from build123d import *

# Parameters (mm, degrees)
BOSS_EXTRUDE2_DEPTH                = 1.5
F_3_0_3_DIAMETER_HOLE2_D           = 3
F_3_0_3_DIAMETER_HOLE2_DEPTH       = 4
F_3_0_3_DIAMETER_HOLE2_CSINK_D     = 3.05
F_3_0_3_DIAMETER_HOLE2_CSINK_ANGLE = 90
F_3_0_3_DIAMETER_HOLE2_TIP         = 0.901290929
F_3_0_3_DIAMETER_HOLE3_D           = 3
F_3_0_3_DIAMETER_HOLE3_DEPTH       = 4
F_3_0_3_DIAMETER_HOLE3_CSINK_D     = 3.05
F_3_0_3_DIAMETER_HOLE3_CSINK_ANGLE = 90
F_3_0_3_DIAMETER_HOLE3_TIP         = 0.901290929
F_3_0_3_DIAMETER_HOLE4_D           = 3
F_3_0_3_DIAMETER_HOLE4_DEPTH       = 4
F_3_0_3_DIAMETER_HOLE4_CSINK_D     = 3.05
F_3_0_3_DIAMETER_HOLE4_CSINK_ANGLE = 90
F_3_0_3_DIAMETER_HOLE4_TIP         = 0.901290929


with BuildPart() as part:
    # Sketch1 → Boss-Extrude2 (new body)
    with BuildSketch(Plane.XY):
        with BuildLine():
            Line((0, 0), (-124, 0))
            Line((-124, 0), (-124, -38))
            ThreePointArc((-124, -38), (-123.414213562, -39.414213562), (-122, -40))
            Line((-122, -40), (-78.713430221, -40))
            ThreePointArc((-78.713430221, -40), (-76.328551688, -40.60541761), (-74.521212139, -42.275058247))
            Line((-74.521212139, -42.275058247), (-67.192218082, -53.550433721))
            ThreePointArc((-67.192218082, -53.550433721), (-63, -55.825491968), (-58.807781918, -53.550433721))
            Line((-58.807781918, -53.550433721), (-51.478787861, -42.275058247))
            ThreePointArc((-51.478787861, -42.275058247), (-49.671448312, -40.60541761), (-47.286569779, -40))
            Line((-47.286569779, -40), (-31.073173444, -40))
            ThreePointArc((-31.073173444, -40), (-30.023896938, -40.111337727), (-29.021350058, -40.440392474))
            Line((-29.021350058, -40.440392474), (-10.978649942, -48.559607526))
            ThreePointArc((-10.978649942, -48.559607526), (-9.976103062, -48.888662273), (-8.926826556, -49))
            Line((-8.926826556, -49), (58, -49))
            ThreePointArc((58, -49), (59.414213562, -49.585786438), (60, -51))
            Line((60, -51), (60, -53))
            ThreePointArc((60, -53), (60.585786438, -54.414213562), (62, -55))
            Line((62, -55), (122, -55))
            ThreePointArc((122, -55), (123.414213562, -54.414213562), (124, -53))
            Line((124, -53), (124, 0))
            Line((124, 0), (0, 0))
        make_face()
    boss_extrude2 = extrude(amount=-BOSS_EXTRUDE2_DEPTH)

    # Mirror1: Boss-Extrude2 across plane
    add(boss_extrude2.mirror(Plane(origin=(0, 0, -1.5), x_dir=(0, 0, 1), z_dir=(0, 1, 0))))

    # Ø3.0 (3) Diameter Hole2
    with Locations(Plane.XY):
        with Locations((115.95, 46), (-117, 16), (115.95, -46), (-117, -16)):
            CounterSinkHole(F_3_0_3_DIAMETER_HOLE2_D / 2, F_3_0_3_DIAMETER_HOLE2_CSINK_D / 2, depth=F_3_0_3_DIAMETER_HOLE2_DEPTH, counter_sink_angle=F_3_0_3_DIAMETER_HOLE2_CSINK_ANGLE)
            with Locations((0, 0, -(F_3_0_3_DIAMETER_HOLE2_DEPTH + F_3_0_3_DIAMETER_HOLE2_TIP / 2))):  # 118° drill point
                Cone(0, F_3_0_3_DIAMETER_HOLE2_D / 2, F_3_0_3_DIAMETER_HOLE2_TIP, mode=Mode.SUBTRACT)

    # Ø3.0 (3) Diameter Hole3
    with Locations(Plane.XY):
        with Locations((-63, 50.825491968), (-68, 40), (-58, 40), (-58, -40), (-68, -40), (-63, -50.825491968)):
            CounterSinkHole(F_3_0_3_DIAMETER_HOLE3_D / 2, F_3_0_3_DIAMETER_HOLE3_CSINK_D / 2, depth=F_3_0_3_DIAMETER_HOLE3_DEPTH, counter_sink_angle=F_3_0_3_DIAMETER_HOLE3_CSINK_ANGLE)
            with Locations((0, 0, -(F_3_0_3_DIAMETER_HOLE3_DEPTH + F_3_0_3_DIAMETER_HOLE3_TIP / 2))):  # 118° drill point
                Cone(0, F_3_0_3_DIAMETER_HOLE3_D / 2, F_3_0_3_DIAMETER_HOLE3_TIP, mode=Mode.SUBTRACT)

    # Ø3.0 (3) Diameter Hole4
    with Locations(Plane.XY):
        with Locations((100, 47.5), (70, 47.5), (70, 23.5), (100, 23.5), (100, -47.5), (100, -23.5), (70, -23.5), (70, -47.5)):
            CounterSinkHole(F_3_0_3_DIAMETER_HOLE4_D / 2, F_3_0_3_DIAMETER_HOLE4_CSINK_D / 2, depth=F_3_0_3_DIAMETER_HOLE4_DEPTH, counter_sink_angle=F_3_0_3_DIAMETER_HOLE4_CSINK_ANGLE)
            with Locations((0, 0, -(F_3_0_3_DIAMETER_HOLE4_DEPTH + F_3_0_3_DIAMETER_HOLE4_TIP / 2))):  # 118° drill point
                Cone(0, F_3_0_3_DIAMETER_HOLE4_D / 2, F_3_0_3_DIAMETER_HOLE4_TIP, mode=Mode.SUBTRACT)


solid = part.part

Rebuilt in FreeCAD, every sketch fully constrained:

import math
import FreeCAD as App
import Part
import Sketcher
from FreeCAD import Vector
Q = App.Units.Quantity

doc = App.newDocument("Part")
params = doc.addObject("Spreadsheet::Sheet", "Params")
for row, (alias, value) in enumerate([
    ("sketch1_radius", "2 mm"),
    ("sketch1_radius2", "5 mm"),
    ("sketch1_width", "60 mm"),
    ("sketch1_width2", "248 mm"),
    ("sketch1_height", "38 mm"),
    ("pad1_length", "1.5 mm"),
    ("sketch2_diameter", "3 mm"),
    ("hole_diameter", "3 mm"),
    ("hole_depth", "4 mm"),
    ("hole_csink_diameter", "3.05 mm"),
    ("sketch3_diameter", "3 mm"),
    ("hole2_diameter", "3 mm"),
    ("hole2_depth", "4 mm"),
    ("hole2_csink_diameter", "3.05 mm"),
    ("sketch4_diameter", "3 mm"),
    ("hole3_diameter", "3 mm"),
    ("hole3_depth", "4 mm"),
    ("hole3_csink_diameter", "3.05 mm"),
], start=1):
    params.set(f"A{row}", alias)
    params.set(f"B{row}", "=" + value)
    params.setAlias(f"B{row}", alias)

body = doc.addObject("PartDesign::Body", "Body")

# Sketch on XY plane
sketch1 = doc.addObject("Sketcher::SketchObject", "Sketch")
body.addObject(sketch1)
sketch1.AttachmentSupport = (doc.XY_Plane, [""])
sketch1.MapMode = "FlatFace"
sketch1.addGeometry([
    Part.LineSegment(Vector(-124, 0, 0), Vector(-124, -38, 0)),  # 0
    Part.ArcOfCircle(Part.Circle(Vector(-122, -38, 0), Vector(0, 0, 1), 2), math.radians(-180), math.radians(-90)),  # 1
    Part.LineSegment(Vector(-122, -40, 0), Vector(-78.7, -40, 0)),  # 2
    Part.ArcOfCircle(Part.Circle(Vector(-78.7, -45, 0), Vector(0, 0, 1), 5), math.radians(33), math.radians(90)),  # 3
    Part.LineSegment(Vector(-74.5, -42.3, 0), Vector(-67.2, -53.6, 0)),  # 4
    Part.ArcOfCircle(Part.Circle(Vector(-63, -50.8, 0), Vector(0, 0, 1), 5), math.radians(-147), math.radians(-33)),  # 5
    Part.LineSegment(Vector(-58.8, -53.6, 0), Vector(-51.5, -42.3, 0)),  # 6
    Part.ArcOfCircle(Part.Circle(Vector(-47.3, -45, 0), Vector(0, 0, 1), 5), math.radians(90), math.radians(147)),  # 7
    Part.LineSegment(Vector(-47.3, -40, 0), Vector(-31.1, -40, 0)),  # 8
    Part.ArcOfCircle(Part.Circle(Vector(-31.1, -45, 0), Vector(0, 0, 1), 5), math.radians(66), math.radians(90)),  # 9
    Part.LineSegment(Vector(-29, -40.4, 0), Vector(-11, -48.6, 0)),  # 10
    Part.ArcOfCircle(Part.Circle(Vector(-8.9, -44, 0), Vector(0, 0, 1), 5), math.radians(-114), math.radians(-90)),  # 11
    Part.LineSegment(Vector(-8.9, -49, 0), Vector(58, -49, 0)),  # 12
    Part.ArcOfCircle(Part.Circle(Vector(58, -51, 0), Vector(0, 0, 1), 2), math.radians(0), math.radians(90)),  # 13
    Part.LineSegment(Vector(60, -51, 0), Vector(60, -53, 0)),  # 14
    Part.ArcOfCircle(Part.Circle(Vector(62, -53, 0), Vector(0, 0, 1), 2), math.radians(-180), math.radians(-90)),  # 15
    Part.LineSegment(Vector(62, -55, 0), Vector(122, -55, 0)),  # 16
    Part.ArcOfCircle(Part.Circle(Vector(122, -53, 0), Vector(0, 0, 1), 2), math.radians(-90), math.radians(0)),  # 17
    Part.LineSegment(Vector(124, -53, 0), Vector(124, 0, 0)),  # 18
    Part.LineSegment(Vector(124, 0, 0), Vector(-124, 0, 0)),  # 19
], False)
sketch1.addConstraint([
    Sketcher.Constraint("Tangent", 0, 2, 1, 1),
    Sketcher.Constraint("Tangent", 1, 2, 2, 1),
    Sketcher.Constraint("Tangent", 2, 2, 3, 2),
    Sketcher.Constraint("Tangent", 3, 1, 4, 1),
    Sketcher.Constraint("Tangent", 4, 2, 5, 1),
    Sketcher.Constraint("Tangent", 5, 2, 6, 1),
    Sketcher.Constraint("Tangent", 6, 2, 7, 2),
    Sketcher.Constraint("Tangent", 7, 1, 8, 1),
    Sketcher.Constraint("Tangent", 8, 2, 9, 2),
    Sketcher.Constraint("Tangent", 9, 1, 10, 1),
    Sketcher.Constraint("Tangent", 10, 2, 11, 1),
    Sketcher.Constraint("Tangent", 11, 2, 12, 1),
    Sketcher.Constraint("Tangent", 12, 2, 13, 2),
    Sketcher.Constraint("Tangent", 13, 1, 14, 1),
    Sketcher.Constraint("Tangent", 14, 2, 15, 1),
    Sketcher.Constraint("Tangent", 15, 2, 16, 1),
    Sketcher.Constraint("Tangent", 16, 2, 17, 1),
    Sketcher.Constraint("Tangent", 17, 2, 18, 1),
    Sketcher.Constraint("Coincident", 18, 2, 19, 1),
    Sketcher.Constraint("Coincident", 19, 2, 0, 1),
    Sketcher.Constraint("Vertical", 0),
    Sketcher.Constraint("Horizontal", 2),
    Sketcher.Constraint("Horizontal", 8),
    Sketcher.Constraint("Horizontal", 12),
    Sketcher.Constraint("Vertical", 14),
    Sketcher.Constraint("Horizontal", 16),
    Sketcher.Constraint("Vertical", 18),
    Sketcher.Constraint("Horizontal", 19),
    Sketcher.Constraint("Equal", 3, 5),
    Sketcher.Constraint("Equal", 5, 7),
    Sketcher.Constraint("Equal", 7, 9),
    Sketcher.Constraint("Equal", 9, 11),
    Sketcher.Constraint("Equal", 1, 13),
    Sketcher.Constraint("Equal", 13, 15),
    Sketcher.Constraint("Equal", 15, 17),
    Sketcher.Constraint("Symmetric", 18, 2, 19, 2, -1, 1),
    Sketcher.Constraint("Horizontal", 3, 3, 7, 3),
    Sketcher.Constraint("Horizontal", 4, 2, 5, 2),
    Sketcher.Constraint("Radius", 1, Q("2 mm")),
    Sketcher.Constraint("Radius", 3, Q("5 mm")),
    Sketcher.Constraint("DistanceX", 16, 1, 16, 2, Q("60 mm")),
    Sketcher.Constraint("DistanceX", 19, 2, 19, 1, Q("248 mm")),
    Sketcher.Constraint("DistanceY", 0, 2, 0, 1, Q("38 mm")),
    Sketcher.Constraint("DistanceY", 14, 2, 14, 1, Q("2 mm")),
    Sketcher.Constraint("DistanceY", 18, 1, 18, 2, Q("53 mm")),
    Sketcher.Constraint("DistanceX", 5, 3, -1, 1, Q("63 mm")),
    Sketcher.Constraint("DistanceX", 2, 1, 2, 2, Q("43.28657 mm")),
    Sketcher.Constraint("DistanceX", 9, 1, 10, 2, Q("18.0427 mm")),
    Sketcher.Constraint("DistanceX", 8, 1, 8, 2, Q("16.213396 mm")),
    Sketcher.Constraint("DistanceY", 5, 3, -1, 1, Q("50.825492 mm")),
])
sketch1.setExpression("Constraints[38]", "Params.sketch1_radius")
sketch1.setExpression("Constraints[39]", "Params.sketch1_radius2")
sketch1.setExpression("Constraints[40]", "Params.sketch1_width")
sketch1.setExpression("Constraints[41]", "Params.sketch1_width2")
sketch1.setExpression("Constraints[42]", "Params.sketch1_height")
pad1 = doc.addObject("PartDesign::Pad", "Pad")
body.addObject(pad1)
pad1.Profile = sketch1
pad1.setExpression("Length", "Params.pad1_length")
pad1.Reversed = True
doc.recompute()

mirrored = doc.addObject("PartDesign::Mirrored", "Mirrored")
body.addObject(mirrored)
mirrored.Originals = [pad1]
mirrored.MirrorPlane = (doc.XZ_Plane, [""])
body.Tip = mirrored

# Sketch on XY plane
sketch2 = doc.addObject("Sketcher::SketchObject", "Sketch001")
body.addObject(sketch2)
sketch2.AttachmentSupport = (doc.XY_Plane, [""])
sketch2.MapMode = "FlatFace"
sketch2.addGeometry([
    Part.Circle(Vector(116, 46, 0), Vector(0, 0, 1), 1.5),
    Part.Circle(Vector(-117, 16, 0), Vector(0, 0, 1), 1.5),
    Part.Circle(Vector(116, -46, 0), Vector(0, 0, 1), 1.5),
    Part.Circle(Vector(-117, -16, 0), Vector(0, 0, 1), 1.5),
], False)
sketch2.addConstraint([
    Sketcher.Constraint("Equal", 0, 1),
    Sketcher.Constraint("Equal", 1, 2),
    Sketcher.Constraint("Equal", 2, 3),
    Sketcher.Constraint("Symmetric", 0, 3, 2, 3, -1),
    Sketcher.Constraint("Symmetric", 1, 3, 3, 3, -1),
    Sketcher.Constraint("Diameter", 0, Q("3 mm")),
    Sketcher.Constraint("DistanceY", -1, 1, 0, 3, Q("46 mm")),
    Sketcher.Constraint("DistanceX", 1, 3, -1, 1, Q("117 mm")),
    Sketcher.Constraint("DistanceY", -1, 1, 1, 3, Q("16 mm")),
    Sketcher.Constraint("DistanceX", -1, 1, 0, 3, Q("115.95 mm")),
])
sketch2.setExpression("Constraints[5]", "Params.sketch2_diameter")
doc.recompute()
hole = doc.addObject("PartDesign::Hole", "Hole")
body.addObject(hole)
hole.Profile = sketch2
hole.ThreadType = "None"
hole.setExpression("Diameter", "Params.hole_diameter")
hole.DepthType = "Dimension"
hole.setExpression("Depth", "Params.hole_depth")
hole.DrillPoint = "Angled"
hole.DrillPointAngle = 118
hole.HoleCutType = "Countersink"
hole.setExpression("HoleCutDiameter", "Params.hole_csink_diameter")
hole.HoleCutCountersinkAngle = 90

# Sketch on XY plane
sketch3 = doc.addObject("Sketcher::SketchObject", "Sketch002")
body.addObject(sketch3)
sketch3.AttachmentSupport = (doc.XY_Plane, [""])
sketch3.MapMode = "FlatFace"
sketch3.addGeometry([
    Part.Circle(Vector(-63, 50.8, 0), Vector(0, 0, 1), 1.5),  # 0
    Part.Circle(Vector(-68, 40, 0), Vector(0, 0, 1), 1.5),  # 1
    Part.Circle(Vector(-58, 40, 0), Vector(0, 0, 1), 1.5),  # 2
    Part.Circle(Vector(-58, -40, 0), Vector(0, 0, 1), 1.5),  # 3
    Part.Circle(Vector(-68, -40, 0), Vector(0, 0, 1), 1.5),  # 4
    Part.Circle(Vector(-63, -50.8, 0), Vector(0, 0, 1), 1.5),  # 5
], False)
sketch3.addConstraint([
    Sketcher.Constraint("Equal", 0, 1),
    Sketcher.Constraint("Equal", 1, 2),
    Sketcher.Constraint("Equal", 2, 3),
    Sketcher.Constraint("Equal", 3, 4),
    Sketcher.Constraint("Equal", 4, 5),
    Sketcher.Constraint("Symmetric", 2, 3, 3, 3, -1),
    Sketcher.Constraint("Symmetric", 1, 3, 4, 3, -1),
    Sketcher.Constraint("Symmetric", 0, 3, 5, 3, -1),
    Sketcher.Constraint("Horizontal", 1, 3, 2, 3),
    Sketcher.Constraint("Diameter", 0, Q("3 mm")),
    Sketcher.Constraint("DistanceX", 0, 3, -1, 1, Q("63 mm")),
    Sketcher.Constraint("DistanceX", 1, 3, -1, 1, Q("68 mm")),
    Sketcher.Constraint("DistanceY", -1, 1, 1, 3, Q("40 mm")),
    Sketcher.Constraint("DistanceX", 2, 3, -1, 1, Q("58 mm")),
    Sketcher.Constraint("DistanceY", -1, 1, 0, 3, Q("50.825492 mm")),
])
sketch3.setExpression("Constraints[9]", "Params.sketch3_diameter")
doc.recompute()
hole2 = doc.addObject("PartDesign::Hole", "Hole001")
body.addObject(hole2)
hole2.Profile = sketch3
hole2.ThreadType = "None"
hole2.setExpression("Diameter", "Params.hole2_diameter")
hole2.DepthType = "Dimension"
hole2.setExpression("Depth", "Params.hole2_depth")
hole2.DrillPoint = "Angled"
hole2.DrillPointAngle = 118
hole2.HoleCutType = "Countersink"
hole2.setExpression("HoleCutDiameter", "Params.hole2_csink_diameter")
hole2.HoleCutCountersinkAngle = 90

# Sketch on XY plane
sketch4 = doc.addObject("Sketcher::SketchObject", "Sketch003")
body.addObject(sketch4)
sketch4.AttachmentSupport = (doc.XY_Plane, [""])
sketch4.MapMode = "FlatFace"
sketch4.addGeometry([
    Part.Circle(Vector(100, 47.5, 0), Vector(0, 0, 1), 1.5),  # 0
    Part.Circle(Vector(70, 47.5, 0), Vector(0, 0, 1), 1.5),  # 1
    Part.Circle(Vector(70, 23.5, 0), Vector(0, 0, 1), 1.5),  # 2
    Part.Circle(Vector(100, 23.5, 0), Vector(0, 0, 1), 1.5),  # 3
    Part.Circle(Vector(100, -47.5, 0), Vector(0, 0, 1), 1.5),  # 4
    Part.Circle(Vector(100, -23.5, 0), Vector(0, 0, 1), 1.5),  # 5
    Part.Circle(Vector(70, -23.5, 0), Vector(0, 0, 1), 1.5),  # 6
    Part.Circle(Vector(70, -47.5, 0), Vector(0, 0, 1), 1.5),  # 7
], False)
sketch4.addConstraint([
    Sketcher.Constraint("Equal", 0, 1),
    Sketcher.Constraint("Equal", 1, 2),
    Sketcher.Constraint("Equal", 2, 3),
    Sketcher.Constraint("Equal", 3, 4),
    Sketcher.Constraint("Equal", 4, 5),
    Sketcher.Constraint("Equal", 5, 6),
    Sketcher.Constraint("Equal", 6, 7),
    Sketcher.Constraint("Symmetric", 0, 3, 4, 3, -1),
    Sketcher.Constraint("Symmetric", 3, 3, 5, 3, -1),
    Sketcher.Constraint("Symmetric", 2, 3, 6, 3, -1),
    Sketcher.Constraint("Symmetric", 1, 3, 7, 3, -1),
    Sketcher.Constraint("Horizontal", 0, 3, 1, 3),
    Sketcher.Constraint("Horizontal", 2, 3, 3, 3),
    Sketcher.Constraint("Vertical", 1, 3, 2, 3),
    Sketcher.Constraint("Vertical", 0, 3, 3, 3),
    Sketcher.Constraint("Diameter", 0, Q("3 mm")),
    Sketcher.Constraint("DistanceX", -1, 1, 0, 3, Q("100 mm")),
    Sketcher.Constraint("DistanceX", -1, 1, 1, 3, Q("70 mm")),
    Sketcher.Constraint("DistanceY", 2, 3, 1, 3, Q("24 mm")),
    Sketcher.Constraint("DistanceY", 4, 3, 3, 3, Q("71 mm")),
])
sketch4.setExpression("Constraints[15]", "Params.sketch4_diameter")
doc.recompute()
hole3 = doc.addObject("PartDesign::Hole", "Hole002")
body.addObject(hole3)
hole3.Profile = sketch4
hole3.ThreadType = "None"
hole3.setExpression("Diameter", "Params.hole3_diameter")
hole3.DepthType = "Dimension"
hole3.setExpression("Depth", "Params.hole3_depth")
hole3.DrillPoint = "Angled"
hole3.DrillPointAngle = 118
hole3.HoleCutType = "Countersink"
hole3.setExpression("HoleCutDiameter", "Params.hole3_csink_diameter")
hole3.HoleCutCountersinkAngle = 90

doc.recompute()
